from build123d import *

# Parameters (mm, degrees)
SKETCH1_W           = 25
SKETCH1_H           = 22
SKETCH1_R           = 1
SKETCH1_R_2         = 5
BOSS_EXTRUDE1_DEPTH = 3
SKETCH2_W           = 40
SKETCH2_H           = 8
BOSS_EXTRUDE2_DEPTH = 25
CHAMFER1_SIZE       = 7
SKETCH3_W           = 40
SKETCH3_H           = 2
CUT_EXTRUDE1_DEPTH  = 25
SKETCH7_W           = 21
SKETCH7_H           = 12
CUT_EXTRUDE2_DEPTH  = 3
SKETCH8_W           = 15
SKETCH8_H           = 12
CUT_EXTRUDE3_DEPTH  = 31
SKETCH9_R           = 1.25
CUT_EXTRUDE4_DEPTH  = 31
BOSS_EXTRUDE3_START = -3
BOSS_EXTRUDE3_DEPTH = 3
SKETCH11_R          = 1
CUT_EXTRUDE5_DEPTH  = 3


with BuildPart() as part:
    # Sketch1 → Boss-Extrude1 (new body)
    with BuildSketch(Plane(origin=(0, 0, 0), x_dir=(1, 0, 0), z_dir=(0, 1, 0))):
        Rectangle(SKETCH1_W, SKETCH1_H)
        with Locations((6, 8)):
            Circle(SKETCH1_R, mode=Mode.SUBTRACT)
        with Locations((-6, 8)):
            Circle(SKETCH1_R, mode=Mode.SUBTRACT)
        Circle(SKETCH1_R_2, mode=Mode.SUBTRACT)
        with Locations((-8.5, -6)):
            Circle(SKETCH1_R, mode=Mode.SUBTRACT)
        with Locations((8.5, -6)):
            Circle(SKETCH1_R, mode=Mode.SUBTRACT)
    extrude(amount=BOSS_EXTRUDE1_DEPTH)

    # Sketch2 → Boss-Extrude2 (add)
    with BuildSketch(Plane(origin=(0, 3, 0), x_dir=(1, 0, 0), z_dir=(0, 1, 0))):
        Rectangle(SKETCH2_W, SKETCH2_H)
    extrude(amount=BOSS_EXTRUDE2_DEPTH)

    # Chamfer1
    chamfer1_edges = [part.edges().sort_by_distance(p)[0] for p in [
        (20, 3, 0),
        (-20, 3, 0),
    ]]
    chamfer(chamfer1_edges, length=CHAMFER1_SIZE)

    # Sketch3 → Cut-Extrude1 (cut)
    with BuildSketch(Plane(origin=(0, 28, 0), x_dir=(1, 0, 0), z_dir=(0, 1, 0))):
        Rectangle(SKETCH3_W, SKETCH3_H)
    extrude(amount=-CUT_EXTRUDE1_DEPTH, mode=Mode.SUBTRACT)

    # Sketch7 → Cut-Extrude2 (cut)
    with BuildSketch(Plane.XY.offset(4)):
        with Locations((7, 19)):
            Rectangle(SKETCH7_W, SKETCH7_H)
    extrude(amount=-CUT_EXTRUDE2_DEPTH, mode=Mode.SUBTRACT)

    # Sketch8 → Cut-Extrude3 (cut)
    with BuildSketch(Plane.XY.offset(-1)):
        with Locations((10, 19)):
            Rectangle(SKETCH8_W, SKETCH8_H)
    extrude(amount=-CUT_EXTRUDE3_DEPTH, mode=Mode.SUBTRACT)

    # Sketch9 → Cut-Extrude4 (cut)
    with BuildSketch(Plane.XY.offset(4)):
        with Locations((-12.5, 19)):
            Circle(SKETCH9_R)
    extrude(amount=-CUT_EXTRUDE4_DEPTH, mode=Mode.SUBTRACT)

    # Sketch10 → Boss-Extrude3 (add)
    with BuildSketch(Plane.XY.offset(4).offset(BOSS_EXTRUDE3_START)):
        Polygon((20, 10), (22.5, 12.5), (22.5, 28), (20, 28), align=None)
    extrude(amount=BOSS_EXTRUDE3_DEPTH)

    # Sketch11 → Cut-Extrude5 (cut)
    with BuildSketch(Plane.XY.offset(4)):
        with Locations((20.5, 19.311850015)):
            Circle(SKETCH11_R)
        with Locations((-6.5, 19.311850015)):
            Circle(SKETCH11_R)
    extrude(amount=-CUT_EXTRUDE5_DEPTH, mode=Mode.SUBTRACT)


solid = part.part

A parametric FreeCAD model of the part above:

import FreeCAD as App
import Part
import Sketcher
Q = App.Units.Quantity


def edges_at(feature, points):
    """Names of the edges that pass closest to the given points."""
    edges = feature.Shape.Edges
    near = lambda p: min(range(len(edges)), key=lambda i: edges[i].distToShape(Part.Vertex(*p))[0])
    return sorted({f"Edge{near(p) + 1}" for p in points})


def add_polygon(sketch, points):
    """Adds a closed chain of lines whose ends are joined by coincident constraints."""
    first, n = sketch.GeometryCount, len(points)
    for a, b in zip(points, points[1:] + points[:1]):
        sketch.addGeometry(Part.LineSegment(App.Vector(*a, 0), App.Vector(*b, 0)), False)
    for i in range(n):
        sketch.addConstraint(Sketcher.Constraint("Coincident", first + i, 2, first + (i + 1) % n, 1))

doc = App.newDocument("Part")
body = doc.addObject("PartDesign::Body", "Body")

# Sketch on XZ plane
sketch1 = doc.addObject("Sketcher::SketchObject", "Sketch")
body.addObject(sketch1)
sketch1.AttachmentSupport = (doc.XZ_Plane, [""])
sketch1.MapMode = "FlatFace"
add_polygon(sketch1, [(-12.5, -11), (-12.5, 11), (12.5, 11), (12.5, -11)])  # lines 0-3
sketch1.addGeometry(Part.Circle(App.Vector(-8.5, 6, 0), App.Vector(0, 0, 1), 1), False)  # 4
sketch1.addGeometry(Part.Circle(App.Vector(8.5, 6, 0), App.Vector(0, 0, 1), 1), False)  # 5
sketch1.addGeometry(Part.Circle(App.Vector(0, 0, 0), App.Vector(0, 0, 1), 5), False)  # 6
sketch1.addGeometry(Part.Circle(App.Vector(-6, -8, 0), App.Vector(0, 0, 1), 1), False)  # 7
sketch1.addGeometry(Part.Circle(App.Vector(6, -8, 0), App.Vector(0, 0, 1), 1), False)  # 8
sketch1.addConstraint([
    Sketcher.Constraint("Vertical", 0),
    Sketcher.Constraint("Horizontal", 1),
    Sketcher.Constraint("Vertical", 2),
    Sketcher.Constraint("Horizontal", 3),
    Sketcher.Constraint("Coincident", 6, 3, -1, 1),
    Sketcher.Constraint("Equal", 4, 5),
    Sketcher.Constraint("Equal", 5, 7),
    Sketcher.Constraint("Equal", 7, 8),
    Sketcher.Constraint("Symmetric", 0, 2, 2, 2, -1, 1),
    Sketcher.Constraint("Symmetric", 4, 3, 5, 3, -2),
    Sketcher.Constraint("Symmetric", 7, 3, 8, 3, -2),
    Sketcher.Constraint("Diameter", 4, Q("2 mm")),
    Sketcher.Constraint("Diameter", 6, Q("10 mm")),
    Sketcher.Constraint("DistanceX", 1, 1, 1, 2, Q("25 mm")),
    Sketcher.Constraint("DistanceY", 0, 1, 0, 2, Q("22 mm")),
    Sketcher.Constraint("DistanceY", -1, 1, 4, 3, Q("6 mm")),
    Sketcher.Constraint("DistanceX", 7, 3, -1, 1, Q("6 mm")),
    Sketcher.Constraint("DistanceY", 7, 3, -1, 1, Q("8 mm")),
    Sketcher.Constraint("DistanceX", 4, 3, 5, 3, Q("17 mm")),
])
pad1 = doc.addObject("PartDesign::Pad", "Pad")
body.addObject(pad1)
pad1.Profile = sketch1
pad1.Length = 3
pad1.Reversed = True

# Sketch on XZ plane
sketch2 = doc.addObject("Sketcher::SketchObject", "Sketch001")
body.addObject(sketch2)
sketch2.AttachmentSupport = (doc.XZ_Plane, [""])
sketch2.MapMode = "FlatFace"
sketch2.AttachmentOffset = App.Placement(App.Vector(0, 0, -3), App.Rotation())
add_polygon(sketch2, [(-20, -4), (-20, 4), (20, 4), (20, -4)])  # lines 0-3
sketch2.addConstraint([
    Sketcher.Constraint("Vertical", 0),
    Sketcher.Constraint("Horizontal", 1),
    Sketcher.Constraint("Vertical", 2),
    Sketcher.Constraint("Horizontal", 3),
    Sketcher.Constraint("Symmetric", 0, 2, 2, 2, -1, 1),
    Sketcher.Constraint("DistanceX", 1, 1, 1, 2, Q("40 mm")),
    Sketcher.Constraint("DistanceY", 0, 1, 0, 2, Q("8 mm")),
])
pad2 = doc.addObject("PartDesign::Pad", "Pad001")
body.addObject(pad2)
pad2.Profile = sketch2
pad2.Length = 25
pad2.Reversed = True
doc.recompute()

chamfer = doc.addObject("PartDesign::Chamfer", "Chamfer")
body.addObject(chamfer)
chamfer.Base = (pad2, edges_at(pad2, [(20, 3, 0), (-20, 3, 0)]))
chamfer.Size = 7

# Sketch on XZ plane
sketch3 = doc.addObject("Sketcher::SketchObject", "Sketch002")
body.addObject(sketch3)
sketch3.AttachmentSupport = (doc.XZ_Plane, [""])
sketch3.MapMode = "FlatFace"
sketch3.AttachmentOffset = App.Placement(App.Vector(0, 0, -28), App.Rotation())
add_polygon(sketch3, [(-20, -1), (-20, 1), (20, 1), (20, -1)])  # lines 0-3
sketch3.addConstraint([
    Sketcher.Constraint("Vertical", 0),
    Sketcher.Constraint("Horizontal", 1),
    Sketcher.Constraint("Vertical", 2),
    Sketcher.Constraint("Horizontal", 3),
    Sketcher.Constraint("Symmetric", 0, 2, 2, 2, -1, 1),
    Sketcher.Constraint("DistanceX", 1, 1, 1, 2, Q("40 mm")),
    Sketcher.Constraint("DistanceY", 0, 1, 0, 2, Q("2 mm")),
])
pocket1 = doc.addObject("PartDesign::Pocket", "Pocket")
body.addObject(pocket1)
pocket1.Profile = sketch3
pocket1.Length = 25
pocket1.Reversed = True

# Sketch on XY plane
sketch4 = doc.addObject("Sketcher::SketchObject", "Sketch003")
body.addObject(sketch4)
sketch4.AttachmentSupport = (doc.XY_Plane, [""])
sketch4.MapMode = "FlatFace"
sketch4.AttachmentOffset = App.Placement(App.Vector(0, 0, 4), App.Rotation())
add_polygon(sketch4, [(-4, 25), (-4, 13), (18, 13), (18, 25)])  # lines 0-3
sketch4.addConstraint([
    Sketcher.Constraint("Vertical", 0),
    Sketcher.Constraint("Horizontal", 1),
    Sketcher.Constraint("Vertical", 2),
    Sketcher.Constraint("Horizontal", 3),
    Sketcher.Constraint("DistanceX", 1, 1, 1, 2, Q("21 mm")),
    Sketcher.Constraint("DistanceY", 0, 2, 0, 1, Q("12 mm")),
    Sketcher.Constraint("DistanceY", -1, 1, 0, 2, Q("13 mm")),
    Sketcher.Constraint("DistanceX", 0, 2, -1, 1, Q("3.5 mm")),
])
pocket2 = doc.addObject("PartDesign::Pocket", "Pocket001")
body.addObject(pocket2)
pocket2.Profile = sketch4
pocket2.Length = 3

# Sketch on XY plane
sketch5 = doc.addObject("Sketcher::SketchObject", "Sketch004")
body.addObject(sketch5)
sketch5.AttachmentSupport = (doc.XY_Plane, [""])
sketch5.MapMode = "FlatFace"
sketch5.AttachmentOffset = App.Placement(App.Vector(0, 0, -1), App.Rotation())
add_polygon(sketch5, [(2, 25), (2, 13), (18, 13), (18, 25)])  # lines 0-3
sketch5.addConstraint([
    Sketcher.Constraint("Vertical", 0),
    Sketcher.Constraint("Horizontal", 1),
    Sketcher.Constraint("Vertical", 2),
    Sketcher.Constraint("Horizontal", 3),
    Sketcher.Constraint("DistanceX", 1, 1, 1, 2, Q("15 mm")),
    Sketcher.Constraint("DistanceY", 0, 2, 0, 1, Q("12 mm")),
    Sketcher.Constraint("DistanceY", -1, 1, 0, 2, Q("13 mm")),
    Sketcher.Constraint("DistanceX", -1, 1, 0, 2, Q("2.5 mm")),
])
pocket3 = doc.addObject("PartDesign::Pocket", "Pocket002")
body.addObject(pocket3)
pocket3.Profile = sketch5
pocket3.Length = 31

# Sketch on XY plane
sketch6 = doc.addObject("Sketcher::SketchObject", "Sketch005")
body.addObject(sketch6)
sketch6.AttachmentSupport = (doc.XY_Plane, [""])
sketch6.MapMode = "FlatFace"
sketch6.AttachmentOffset = App.Placement(App.Vector(0, 0, 4), App.Rotation())
sketch6.addGeometry(Part.Circle(App.Vector(-12.5, 19, 0), App.Vector(0, 0, 1), 1.2), False)
sketch6.addConstraint([
    Sketcher.Constraint("Diameter", 0, Q("2.5 mm")),
    Sketcher.Constraint("DistanceY", -1, 1, 0, 3, Q("19 mm")),
    Sketcher.Constraint("DistanceX", 0, 3, -1, 1, Q("12.5 mm")),
])
pocket4 = doc.addObject("PartDesign::Pocket", "Pocket003")
body.addObject(pocket4)
pocket4.Profile = sketch6
pocket4.Length = 31

# Sketch on XY plane
sketch7 = doc.addObject("Sketcher::SketchObject", "Sketch006")
body.addObject(sketch7)
sketch7.AttachmentSupport = (doc.XY_Plane, [""])
sketch7.MapMode = "FlatFace"
sketch7.AttachmentOffset = App.Placement(App.Vector(0, 0, 1), App.Rotation())
add_polygon(sketch7, [(20, 10), (22.5, 12.5), (22.5, 28), (20, 28)])  # lines 0-3
sketch7.addConstraint([
    Sketcher.Constraint("Vertical", 1),
    Sketcher.Constraint("Horizontal", 2),
    Sketcher.Constraint("Vertical", 3),
    Sketcher.Constraint("DistanceY", 3, 2, 3, 1, Q("18 mm")),
    Sketcher.Constraint("Angle", 0, Q("45 deg")),
    Sketcher.Constraint("DistanceX", 2, 2, 2, 1, Q("2.5 mm")),
    Sketcher.Constraint("DistanceY", -1, 1, 1, 2, Q("28 mm")),
    Sketcher.Constraint("DistanceX", -1, 1, 2, 2, Q("20 mm")),
])
pad3 = doc.addObject("PartDesign::Pad", "Pad002")
body.addObject(pad3)
pad3.Profile = sketch7
pad3.Length = 3

# Sketch on XY plane
sketch8 = doc.addObject("Sketcher::SketchObject", "Sketch007")
body.addObject(sketch8)
sketch8.AttachmentSupport = (doc.XY_Plane, [""])
sketch8.MapMode = "FlatFace"
sketch8.AttachmentOffset = App.Placement(App.Vector(0, 0, 4), App.Rotation())
sketch8.addGeometry([
    Part.Circle(App.Vector(20.5, 19.3, 0), App.Vector(0, 0, 1), 1),
    Part.Circle(App.Vector(-6.5, 19.3, 0), App.Vector(0, 0, 1), 1),
], False)
sketch8.addConstraint([
    Sketcher.Constraint("Equal", 0, 1),
    Sketcher.Constraint("Horizontal", 0, 3, 1, 3),
    Sketcher.Constraint("Diameter", 0, Q("2 mm")),
    Sketcher.Constraint("DistanceX", 1, 3, 0, 3, Q("27 mm")),
    Sketcher.Constraint("DistanceX", -1, 1, 0, 3, Q("20.5 mm")),
    Sketcher.Constraint("DistanceY", -1, 1, 0, 3, Q("19.31185 mm")),
])
pocket5 = doc.addObject("PartDesign::Pocket", "Pocket004")
body.addObject(pocket5)
pocket5.Profile = sketch8
pocket5.Length = 3

doc.recompute()
